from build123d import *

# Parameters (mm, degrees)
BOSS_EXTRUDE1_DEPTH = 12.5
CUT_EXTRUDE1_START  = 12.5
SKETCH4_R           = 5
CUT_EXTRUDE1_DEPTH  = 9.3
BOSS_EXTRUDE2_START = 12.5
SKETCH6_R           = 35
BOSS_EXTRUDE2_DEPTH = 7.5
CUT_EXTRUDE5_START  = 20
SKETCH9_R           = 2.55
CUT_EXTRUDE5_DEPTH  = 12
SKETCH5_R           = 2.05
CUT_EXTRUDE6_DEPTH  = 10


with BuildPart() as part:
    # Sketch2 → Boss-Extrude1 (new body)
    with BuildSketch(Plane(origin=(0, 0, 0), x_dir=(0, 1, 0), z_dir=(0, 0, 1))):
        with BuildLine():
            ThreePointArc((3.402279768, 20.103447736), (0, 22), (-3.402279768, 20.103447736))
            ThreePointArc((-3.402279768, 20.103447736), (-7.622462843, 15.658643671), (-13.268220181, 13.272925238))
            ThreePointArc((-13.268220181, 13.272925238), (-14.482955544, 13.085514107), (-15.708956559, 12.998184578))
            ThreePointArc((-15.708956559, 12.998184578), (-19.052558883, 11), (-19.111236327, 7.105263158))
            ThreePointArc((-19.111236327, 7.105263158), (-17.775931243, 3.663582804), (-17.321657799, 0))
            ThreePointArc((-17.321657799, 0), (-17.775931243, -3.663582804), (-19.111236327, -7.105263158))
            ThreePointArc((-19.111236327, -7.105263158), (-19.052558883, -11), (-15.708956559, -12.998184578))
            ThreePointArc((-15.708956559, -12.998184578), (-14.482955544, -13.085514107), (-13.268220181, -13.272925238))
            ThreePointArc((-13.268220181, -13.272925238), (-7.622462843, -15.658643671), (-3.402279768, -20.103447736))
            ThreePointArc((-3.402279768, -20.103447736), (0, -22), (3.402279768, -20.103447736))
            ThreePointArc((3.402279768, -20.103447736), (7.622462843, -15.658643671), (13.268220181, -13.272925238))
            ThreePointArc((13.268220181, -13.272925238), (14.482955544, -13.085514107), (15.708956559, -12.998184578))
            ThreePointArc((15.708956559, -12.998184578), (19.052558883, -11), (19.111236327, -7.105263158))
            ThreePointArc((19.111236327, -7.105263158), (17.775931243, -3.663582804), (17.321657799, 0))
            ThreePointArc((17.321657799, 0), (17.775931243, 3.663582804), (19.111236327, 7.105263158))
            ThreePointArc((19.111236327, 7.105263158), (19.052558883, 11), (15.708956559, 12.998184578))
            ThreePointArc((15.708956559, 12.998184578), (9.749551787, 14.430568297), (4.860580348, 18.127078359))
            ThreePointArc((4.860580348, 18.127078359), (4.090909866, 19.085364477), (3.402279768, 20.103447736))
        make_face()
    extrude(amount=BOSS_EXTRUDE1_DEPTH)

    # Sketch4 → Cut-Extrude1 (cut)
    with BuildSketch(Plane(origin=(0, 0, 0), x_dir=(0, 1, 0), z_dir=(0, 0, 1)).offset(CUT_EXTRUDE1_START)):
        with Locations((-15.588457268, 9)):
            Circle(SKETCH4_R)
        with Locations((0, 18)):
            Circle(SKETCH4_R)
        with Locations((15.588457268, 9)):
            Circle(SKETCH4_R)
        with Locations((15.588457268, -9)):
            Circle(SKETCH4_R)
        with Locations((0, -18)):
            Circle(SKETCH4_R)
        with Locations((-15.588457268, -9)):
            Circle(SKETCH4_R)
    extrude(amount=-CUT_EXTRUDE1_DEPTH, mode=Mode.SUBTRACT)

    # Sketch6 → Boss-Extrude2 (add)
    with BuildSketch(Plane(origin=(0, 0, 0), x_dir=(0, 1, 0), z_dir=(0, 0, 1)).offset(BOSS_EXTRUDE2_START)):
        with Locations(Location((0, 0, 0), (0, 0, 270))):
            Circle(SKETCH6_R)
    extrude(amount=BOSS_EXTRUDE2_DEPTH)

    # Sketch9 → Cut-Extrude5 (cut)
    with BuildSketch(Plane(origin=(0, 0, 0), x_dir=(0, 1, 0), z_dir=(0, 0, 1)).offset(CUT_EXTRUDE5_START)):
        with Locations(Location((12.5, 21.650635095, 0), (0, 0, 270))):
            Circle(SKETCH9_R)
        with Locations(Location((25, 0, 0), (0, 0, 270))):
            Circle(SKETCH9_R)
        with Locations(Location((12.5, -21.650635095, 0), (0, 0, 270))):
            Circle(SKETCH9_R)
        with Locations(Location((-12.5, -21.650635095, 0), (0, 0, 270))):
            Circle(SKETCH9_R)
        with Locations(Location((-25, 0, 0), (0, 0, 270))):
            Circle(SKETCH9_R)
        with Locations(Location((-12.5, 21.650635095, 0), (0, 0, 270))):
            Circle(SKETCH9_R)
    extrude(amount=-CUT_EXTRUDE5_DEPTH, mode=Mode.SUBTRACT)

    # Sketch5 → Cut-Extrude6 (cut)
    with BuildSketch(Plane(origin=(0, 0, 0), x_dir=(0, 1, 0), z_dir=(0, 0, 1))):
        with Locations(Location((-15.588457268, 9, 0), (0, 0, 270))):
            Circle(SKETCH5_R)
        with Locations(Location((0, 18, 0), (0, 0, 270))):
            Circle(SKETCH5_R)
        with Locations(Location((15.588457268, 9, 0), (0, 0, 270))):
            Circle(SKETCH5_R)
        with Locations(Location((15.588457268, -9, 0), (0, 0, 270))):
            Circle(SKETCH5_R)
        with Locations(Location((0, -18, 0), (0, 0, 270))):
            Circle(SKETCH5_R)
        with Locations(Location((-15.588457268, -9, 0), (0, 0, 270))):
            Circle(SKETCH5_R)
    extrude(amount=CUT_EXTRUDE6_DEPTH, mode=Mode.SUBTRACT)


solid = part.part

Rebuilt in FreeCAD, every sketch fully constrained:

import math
import FreeCAD as App
import Part
import Sketcher

V = App.Vector
Q = App.Units.Quantity

doc = App.newDocument("Part")
body = doc.addObject("PartDesign::Body", "Body")

sketch1 = body.newObject("Sketcher::SketchObject", "Sketch")
sketch1.AttachmentSupport = (doc.getObject("XY_Plane"), [""])
sketch1.MapMode = "FlatFace"
sketch1.addGeometry(Part.ArcOfCircle(Part.Circle(V(-18, 0, 0), V(0, 0, 1), 4), math.radians(122), math.radians(238)), False)
sketch1.addGeometry(Part.ArcOfCircle(Part.Circle(V(-28, -16.2, 0), V(0, 0, 1), 15), math.radians(11), math.radians(58)), False)
sketch1.addGeometry(Part.ArcOfCircle(Part.Circle(V(-28, -16.2, 0), V(0, 0, 1), 15), math.radians(1.73), math.radians(11.12)), False)
sketch1.addGeometry(Part.ArcOfCircle(Part.Circle(V(-9, -15.6, 0), V(0, 0, 1), 4), math.radians(-178), math.radians(-62)), False)
sketch1.addGeometry(Part.ArcOfCircle(Part.Circle(V(0, -32.3, 0), V(0, 0, 1), 15), math.radians(90), math.radians(118)), False)
sketch1.addGeometry(Part.ArcOfCircle(Part.Circle(V(0, -32.3, 0), V(0, 0, 1), 15), math.radians(62), math.radians(90)), False)
sketch1.addGeometry(Part.ArcOfCircle(Part.Circle(V(9, -15.6, 0), V(0, 0, 1), 4), math.radians(-118), math.radians(-2)), False)
sketch1.addGeometry(Part.ArcOfCircle(Part.Circle(V(28, -16.2, 0), V(0, 0, 1), 15), math.radians(168.88), math.radians(178.27)), False)
sketch1.addGeometry(Part.ArcOfCircle(Part.Circle(V(28, -16.2, 0), V(0, 0, 1), 15), math.radians(122), math.radians(169)), False)
sketch1.addGeometry(Part.ArcOfCircle(Part.Circle(V(18, 0, 0), V(0, 0, 1), 4), math.radians(-58), math.radians(58)), False)
sketch1.addGeometry(Part.ArcOfCircle(Part.Circle(V(28, 16.2, 0), V(0, 0, 1), 15), math.radians(-169), math.radians(-122)), False)
sketch1.addGeometry(Part.ArcOfCircle(Part.Circle(V(28, 16.2, 0), V(0, 0, 1), 15), math.radians(-178.27), math.radians(-168.88)), False)
sketch1.addGeometry(Part.ArcOfCircle(Part.Circle(V(9, 15.6, 0), V(0, 0, 1), 4), math.radians(2), math.radians(118)), False)
sketch1.addGeometry(Part.ArcOfCircle(Part.Circle(V(0, 32.3, 0), V(0, 0, 1), 15), math.radians(-90), math.radians(-62)), False)
sketch1.addGeometry(Part.ArcOfCircle(Part.Circle(V(0, 32.3, 0), V(0, 0, 1), 15), math.radians(-118), math.radians(-90)), False)
sketch1.addGeometry(Part.ArcOfCircle(Part.Circle(V(-9, 15.6, 0), V(0, 0, 1), 4), math.radians(62), math.radians(178)), False)
sketch1.addGeometry(Part.ArcOfCircle(Part.Circle(V(-28, 16.2, 0), V(0, 0, 1), 15), math.radians(-49), math.radians(-2)), False)
sketch1.addGeometry(Part.ArcOfCircle(Part.Circle(V(-28, 16.2, 0), V(0, 0, 1), 15), math.radians(-58.27), math.radians(-48.88)), False)
sketch1.addConstraint(Sketcher.Constraint("Tangent", 0, 2, 1, 2))
sketch1.addConstraint(Sketcher.Constraint("Tangent", 1, 1, 2, 2))
sketch1.addConstraint(Sketcher.Constraint("Tangent", 2, 1, 3, 1))
sketch1.addConstraint(Sketcher.Constraint("Tangent", 3, 2, 4, 2))
sketch1.addConstraint(Sketcher.Constraint("Tangent", 4, 1, 5, 2))
sketch1.addConstraint(Sketcher.Constraint("Tangent", 5, 1, 6, 1))
sketch1.addConstraint(Sketcher.Constraint("Tangent", 6, 2, 7, 2))
sketch1.addConstraint(Sketcher.Constraint("Tangent", 7, 1, 8, 2))
sketch1.addConstraint(Sketcher.Constraint("Tangent", 8, 1, 9, 1))
sketch1.addConstraint(Sketcher.Constraint("Tangent", 9, 2, 10, 2))
sketch1.addConstraint(Sketcher.Constraint("Tangent", 10, 1, 11, 2))
sketch1.addConstraint(Sketcher.Constraint("Tangent", 11, 1, 12, 1))
sketch1.addConstraint(Sketcher.Constraint("Tangent", 12, 2, 13, 2))
sketch1.addConstraint(Sketcher.Constraint("Tangent", 13, 1, 14, 2))
sketch1.addConstraint(Sketcher.Constraint("Tangent", 14, 1, 15, 1))
sketch1.addConstraint(Sketcher.Constraint("Tangent", 15, 2, 16, 2))
sketch1.addConstraint(Sketcher.Constraint("Tangent", 16, 1, 17, 2))
sketch1.addConstraint(Sketcher.Constraint("Tangent", 17, 1, 0, 1))
sketch1.addConstraint(Sketcher.Constraint("Equal", 1, 2))
sketch1.addConstraint(Sketcher.Constraint("Equal", 0, 3))
sketch1.addConstraint(Sketcher.Constraint("Equal", 2, 4))
sketch1.addConstraint(Sketcher.Constraint("Equal", 4, 5))
sketch1.addConstraint(Sketcher.Constraint("Equal", 3, 6))
sketch1.addConstraint(Sketcher.Constraint("Equal", 5, 7))
sketch1.addConstraint(Sketcher.Constraint("Equal", 7, 8))
sketch1.addConstraint(Sketcher.Constraint("Equal", 6, 9))
sketch1.addConstraint(Sketcher.Constraint("Equal", 8, 10))
sketch1.addConstraint(Sketcher.Constraint("Equal", 10, 11))
sketch1.addConstraint(Sketcher.Constraint("Equal", 9, 12))
sketch1.addConstraint(Sketcher.Constraint("Equal", 11, 13))
sketch1.addConstraint(Sketcher.Constraint("Equal", 13, 14))
sketch1.addConstraint(Sketcher.Constraint("Equal", 12, 15))
sketch1.addConstraint(Sketcher.Constraint("Equal", 14, 16))
sketch1.addConstraint(Sketcher.Constraint("Equal", 16, 17))
sketch1.addConstraint(Sketcher.Constraint("Symmetric", 0, 3, 9, 3, -1, 1))
sketch1.addConstraint(Sketcher.Constraint("Symmetric", 3, 3, 12, 3, -1, 1))
sketch1.addConstraint(Sketcher.Constraint("Symmetric", 6, 3, 15, 3, -1, 1))
sketch1.addConstraint(Sketcher.Constraint("Symmetric", 3, 3, 6, 3, -2))
sketch1.addConstraint(Sketcher.Constraint("Symmetric", 1, 1, 7, 1, -2))
sketch1.addConstraint(Sketcher.Constraint("PointOnObject", 4, 1, -2))
sketch1.addConstraint(Sketcher.Constraint("PointOnObject", 13, 1, -2))
sketch1.addConstraint(Sketcher.Constraint("Vertical", 7, 1, 10, 1))
sketch1.addConstraint(Sketcher.Constraint("Radius", 0, Q("4 mm")))
sketch1.addConstraint(Sketcher.Constraint("Radius", 1, Q("15 mm")))
sketch1.addConstraint(Sketcher.Constraint("DistanceX", 0, 3, -1, 1, Q("18 mm")))
sketch1.addConstraint(Sketcher.Constraint("DistanceX", 3, 3, -1, 1, Q("9 mm")))
sketch1.addConstraint(Sketcher.Constraint("DistanceY", 2, 1, 3, 3, Q("0.120499 mm")))
sketch1.addConstraint(Sketcher.Constraint("DistanceX", 17, 3, 16, 1, Q("9.864298 mm")))
sketch1.addConstraint(Sketcher.Constraint("DistanceY", 1, 1, -1, 1, Q("13.26822 mm")))
pad1 = body.newObject("PartDesign::Pad", "Pad")
pad1.Profile = sketch1
pad1.Length = 12.5

sketch2 = body.newObject("Sketcher::SketchObject", "Sketch001")
sketch2.AttachmentSupport = (doc.getObject("XY_Plane"), [""])
sketch2.MapMode = "FlatFace"
sketch2.AttachmentOffset = App.Placement(V(0, 0, 12.5), App.Rotation())
sketch2.addGeometry(Part.Circle(V(-9, -16, 0), V(0, 0, 1), 5), False)
sketch2.addGeometry(Part.Circle(V(-18, 0, 0), V(0, 0, 1), 5), False)
sketch2.addGeometry(Part.Circle(V(-9, 16, 0), V(0, 0, 1), 5), False)
sketch2.addGeometry(Part.Circle(V(9, 16, 0), V(0, 0, 1), 5), False)
sketch2.addGeometry(Part.Circle(V(18, 0, 0), V(0, 0, 1), 5), False)
sketch2.addGeometry(Part.Circle(V(9, -16, 0), V(0, 0, 1), 5), False)
sketch2.addConstraint(Sketcher.Constraint("Equal", 0, 1))
sketch2.addConstraint(Sketcher.Constraint("Equal", 1, 2))
sketch2.addConstraint(Sketcher.Constraint("Equal", 2, 3))
sketch2.addConstraint(Sketcher.Constraint("Equal", 3, 4))
sketch2.addConstraint(Sketcher.Constraint("Equal", 4, 5))
sketch2.addConstraint(Sketcher.Constraint("Symmetric", 0, 3, 3, 3, -1, 1))
sketch2.addConstraint(Sketcher.Constraint("Symmetric", 1, 3, 4, 3, -1, 1))
sketch2.addConstraint(Sketcher.Constraint("Symmetric", 2, 3, 5, 3, -1, 1))
sketch2.addConstraint(Sketcher.Constraint("Symmetric", 2, 3, 3, 3, -2))
sketch2.addConstraint(Sketcher.Constraint("PointOnObject", 1, 3, -1))
sketch2.addConstraint(Sketcher.Constraint("Diameter", 0, Q("10 mm")))
sketch2.addConstraint(Sketcher.Constraint("DistanceX", 0, 3, -1, 1, Q("9 mm")))
sketch2.addConstraint(Sketcher.Constraint("DistanceX", 1, 3, -1, 1, Q("18 mm")))
sketch2.addConstraint(Sketcher.Constraint("DistanceY", 0, 3, -1, 1, Q("15.588457 mm")))
pocket1 = body.newObject("PartDesign::Pocket", "Pocket")
pocket1.Profile = sketch2
pocket1.Length = 9.3

sketch3 = body.newObject("Sketcher::SketchObject", "Sketch002")
sketch3.AttachmentSupport = (doc.getObject("XY_Plane"), [""])
sketch3.MapMode = "FlatFace"
sketch3.AttachmentOffset = App.Placement(V(0, 0, 12.5), App.Rotation())
sketch3.addGeometry(Part.Circle(V(0, 0, 0), V(0, 0, 1), 35), False)
sketch3.addConstraint(Sketcher.Constraint("Coincident", 0, 3, -1, 1))
sketch3.addConstraint(Sketcher.Constraint("Diameter", 0, Q("70 mm")))
pad2 = body.newObject("PartDesign::Pad", "Pad001")
pad2.Profile = sketch3
pad2.Length = 7.5

sketch4 = body.newObject("Sketcher::SketchObject", "Sketch003")
sketch4.AttachmentSupport = (doc.getObject("XY_Plane"), [""])
sketch4.MapMode = "FlatFace"
sketch4.AttachmentOffset = App.Placement(V(0, 0, 20), App.Rotation())
sketch4.addGeometry(Part.Circle(V(-21.7, 12.5, 0), V(0, 0, 1), 2.5), False)
sketch4.addGeometry(Part.Circle(V(0, 25, 0), V(0, 0, 1), 2.5), False)
sketch4.addGeometry(Part.Circle(V(21.7, 12.5, 0), V(0, 0, 1), 2.5), False)
sketch4.addGeometry(Part.Circle(V(21.7, -12.5, 0), V(0, 0, 1), 2.5), False)
sketch4.addGeometry(Part.Circle(V(0, -25, 0), V(0, 0, 1), 2.5), False)
sketch4.addGeometry(Part.Circle(V(-21.7, -12.5, 0), V(0, 0, 1), 2.5), False)
sketch4.addConstraint(Sketcher.Constraint("Equal", 0, 1))
sketch4.addConstraint(Sketcher.Constraint("Equal", 1, 2))
sketch4.addConstraint(Sketcher.Constraint("Equal", 2, 3))
sketch4.addConstraint(Sketcher.Constraint("Equal", 3, 4))
sketch4.addConstraint(Sketcher.Constraint("Equal", 4, 5))
sketch4.addConstraint(Sketcher.Constraint("Symmetric", 0, 3, 3, 3, -1, 1))
sketch4.addConstraint(Sketcher.Constraint("Symmetric", 1, 3, 4, 3, -1, 1))
sketch4.addConstraint(Sketcher.Constraint("Symmetric", 2, 3, 5, 3, -1, 1))
sketch4.addConstraint(Sketcher.Constraint("Symmetric", 0, 3, 2, 3, -2))
sketch4.addConstraint(Sketcher.Constraint("PointOnObject", 1, 3, -2))
sketch4.addConstraint(Sketcher.Constraint("Diameter", 0, Q("5.1 mm")))
sketch4.addConstraint(Sketcher.Constraint("DistanceY", -1, 1, 1, 3, Q("25 mm")))
sketch4.addConstraint(Sketcher.Constraint("DistanceY", 3, 3, 2, 3, Q("25 mm")))
sketch4.addConstraint(Sketcher.Constraint("DistanceX", 0, 3, 2, 3, Q("43.30127 mm")))
pocket2 = body.newObject("PartDesign::Pocket", "Pocket001")
pocket2.Profile = sketch4
pocket2.Length = 12

sketch5 = body.newObject("Sketcher::SketchObject", "Sketch004")
sketch5.AttachmentSupport = (doc.getObject("XY_Plane"), [""])
sketch5.MapMode = "FlatFace"
sketch5.addGeometry(Part.Circle(V(-9, -15.6, 0), V(0, 0, 1), 2), False)
sketch5.addGeometry(Part.Circle(V(-18, 0, 0), V(0, 0, 1), 2), False)
sketch5.addGeometry(Part.Circle(V(-9, 15.6, 0), V(0, 0, 1), 2), False)
sketch5.addGeometry(Part.Circle(V(9, 15.6, 0), V(0, 0, 1), 2), False)
sketch5.addGeometry(Part.Circle(V(18, 0, 0), V(0, 0, 1), 2), False)
sketch5.addGeometry(Part.Circle(V(9, -15.6, 0), V(0, 0, 1), 2), False)
sketch5.addConstraint(Sketcher.Constraint("Equal", 0, 1))
sketch5.addConstraint(Sketcher.Constraint("Equal", 1, 2))
sketch5.addConstraint(Sketcher.Constraint("Equal", 2, 3))
sketch5.addConstraint(Sketcher.Constraint("Equal", 3, 4))
sketch5.addConstraint(Sketcher.Constraint("Equal", 4, 5))
sketch5.addConstraint(Sketcher.Constraint("Symmetric", 0, 3, 3, 3, -1, 1))
sketch5.addConstraint(Sketcher.Constraint("Symmetric", 1, 3, 4, 3, -1, 1))
sketch5.addConstraint(Sketcher.Constraint("Symmetric", 2, 3, 5, 3, -1, 1))
sketch5.addConstraint(Sketcher.Constraint("Symmetric", 2, 3, 3, 3, -2))
sketch5.addConstraint(Sketcher.Constraint("PointOnObject", 1, 3, -1))
sketch5.addConstraint(Sketcher.Constraint("Diameter", 0, Q("4.1 mm")))
sketch5.addConstraint(Sketcher.Constraint("DistanceX", 0, 3, -1, 1, Q("9 mm")))
sketch5.addConstraint(Sketcher.Constraint("DistanceX", 1, 3, -1, 1, Q("18 mm")))
sketch5.addConstraint(Sketcher.Constraint("DistanceY", 0, 3, -1, 1, Q("15.588457 mm")))
pocket3 = body.newObject("PartDesign::Pocket", "Pocket002")
pocket3.Profile = sketch5
pocket3.Length = 10
pocket3.Reversed = True

doc.recompute()
